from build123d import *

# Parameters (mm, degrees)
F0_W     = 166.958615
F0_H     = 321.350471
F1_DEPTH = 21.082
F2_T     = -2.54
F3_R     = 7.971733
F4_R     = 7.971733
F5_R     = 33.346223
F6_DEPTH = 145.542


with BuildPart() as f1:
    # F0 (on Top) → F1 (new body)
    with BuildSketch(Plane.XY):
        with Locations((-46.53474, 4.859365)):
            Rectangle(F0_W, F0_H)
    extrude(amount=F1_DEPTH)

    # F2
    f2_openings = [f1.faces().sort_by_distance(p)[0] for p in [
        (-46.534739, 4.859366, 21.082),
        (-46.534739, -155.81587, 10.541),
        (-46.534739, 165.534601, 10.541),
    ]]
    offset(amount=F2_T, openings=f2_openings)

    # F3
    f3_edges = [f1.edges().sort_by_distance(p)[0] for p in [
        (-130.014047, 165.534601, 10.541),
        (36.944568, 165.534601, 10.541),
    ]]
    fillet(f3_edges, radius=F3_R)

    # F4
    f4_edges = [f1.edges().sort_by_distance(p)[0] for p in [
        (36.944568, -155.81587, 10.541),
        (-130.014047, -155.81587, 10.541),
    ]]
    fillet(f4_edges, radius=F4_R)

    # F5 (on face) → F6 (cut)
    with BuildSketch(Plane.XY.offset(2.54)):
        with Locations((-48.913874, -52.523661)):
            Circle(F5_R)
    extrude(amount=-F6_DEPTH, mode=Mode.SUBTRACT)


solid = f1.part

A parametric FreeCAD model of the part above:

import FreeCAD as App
import Part
import Sketcher

V = App.Vector


def edges_at(feature, points):
    """Names of the edges that pass closest to the given points."""
    edges = feature.Shape.Edges
    near = lambda p: min(range(len(edges)), key=lambda i: edges[i].distToShape(Part.Vertex(*p))[0])
    return sorted({f"Edge{near(p) + 1}" for p in points})


def faces_at(feature, points):
    """Names of the faces that lie closest to the given points."""
    faces = feature.Shape.Faces
    near = lambda p: min(range(len(faces)), key=lambda i: faces[i].distToShape(Part.Vertex(*p))[0])
    return sorted({f"Face{near(p) + 1}" for p in points})


def add_polygon(sketch, points):
    """Adds a closed chain of lines whose ends are joined by coincident constraints."""
    first, n = sketch.GeometryCount, len(points)
    for a, b in zip(points, points[1:] + points[:1]):
        sketch.addGeometry(Part.LineSegment(App.Vector(*a, 0), App.Vector(*b, 0)), False)
    for i in range(n):
        sketch.addConstraint(Sketcher.Constraint("Coincident", first + i, 2, first + (i + 1) % n, 1))

doc = App.newDocument("Part")
params = doc.addObject("Spreadsheet::Sheet", "Params")
for row, (alias, value) in enumerate([
    ("pad1_length", "0.83 in"),
    ("thickness_wall", "0.1 in"),
    ("fillet_radius", "7.971733 mm"),
    ("fillet2_radius", "7.971733 mm"),
    ("pocket1_length", "5.73 in"),
], start=1):
    params.set(f"A{row}", alias)
    params.set(f"B{row}", "=" + value)
    params.setAlias(f"B{row}", alias)

body = doc.addObject("PartDesign::Body", "Body")

# Sketch on XY plane
sketch1 = doc.addObject("Sketcher::SketchObject", "Sketch")
body.addObject(sketch1)
sketch1.AttachmentSupport = (doc.XY_Plane, [""])
sketch1.MapMode = "FlatFace"
add_polygon(sketch1, [(-130, 166), (-130, -156), (37, -156), (37, 166)])  # lines 0-3
sketch1.addConstraint(Sketcher.Constraint("Vertical", 0))
sketch1.addConstraint(Sketcher.Constraint("Horizontal", 1))
sketch1.addConstraint(Sketcher.Constraint("Vertical", 2))
sketch1.addConstraint(Sketcher.Constraint("Horizontal", 3))
sketch1.addConstraint(Sketcher.Constraint("DistanceY", 0, 2, 0, 1, 321.350471))
sketch1.addConstraint(Sketcher.Constraint("DistanceY", -1, 1, 2, 2, 165.534601))
sketch1.addConstraint(Sketcher.Constraint("DistanceX", 1, 1, 1, 2, 166.958615))
sketch1.addConstraint(Sketcher.Constraint("DistanceX", 0, 2, -1, 1, 130.014048))
pad1 = doc.addObject("PartDesign::Pad", "Pad")
body.addObject(pad1)
pad1.Profile = sketch1
pad1.setExpression("Length", "Params.pad1_length")
doc.recompute()

thickness = doc.addObject("PartDesign::Thickness", "Thickness")
body.addObject(thickness)
thickness.Base = (pad1, faces_at(pad1, [(-46.535, 4.859, 21.082), (-46.535, -155.816, 10.541), (-46.535, 165.535, 10.541)]))
thickness.setExpression("Value", "Params.thickness_wall")
thickness.Reversed = True
thickness.Join = "Arc"
doc.recompute()

fillet = doc.addObject("PartDesign::Fillet", "Fillet")
body.addObject(fillet)
fillet.Base = (thickness, edges_at(thickness, [(-130.014, 165.535, 10.541), (36.945, 165.535, 10.541)]))
fillet.setExpression("Radius", "Params.fillet_radius")
doc.recompute()

fillet2 = doc.addObject("PartDesign::Fillet", "Fillet001")
body.addObject(fillet2)
fillet2.Base = (fillet, edges_at(fillet, [(36.945, -155.816, 10.541), (-130.014, -155.816, 10.541)]))
fillet2.setExpression("Radius", "Params.fillet2_radius")

# Sketch on XY plane
sketch2 = doc.addObject("Sketcher::SketchObject", "Sketch001")
body.addObject(sketch2)
sketch2.AttachmentSupport = (doc.XY_Plane, [""])
sketch2.MapMode = "FlatFace"
sketch2.AttachmentOffset = App.Placement(V(0, 0, 0.1 * 25.4), App.Rotation())
sketch2.addGeometry(Part.Circle(V(-49, -53, 0), V(0, 0, 1), 33), False)
sketch2.addConstraint(Sketcher.Constraint("Diameter", 0, 66.692446))
sketch2.addConstraint(Sketcher.Constraint("DistanceY", 0, 3, -1, 1, 52.523661))
sketch2.addConstraint(Sketcher.Constraint("DistanceX", 0, 3, -1, 1, 48.913874))
pocket1 = doc.addObject("PartDesign::Pocket", "Pocket")
body.addObject(pocket1)
pocket1.Profile = sketch2
pocket1.setExpression("Length", "Params.pocket1_length")

doc.recompute()
